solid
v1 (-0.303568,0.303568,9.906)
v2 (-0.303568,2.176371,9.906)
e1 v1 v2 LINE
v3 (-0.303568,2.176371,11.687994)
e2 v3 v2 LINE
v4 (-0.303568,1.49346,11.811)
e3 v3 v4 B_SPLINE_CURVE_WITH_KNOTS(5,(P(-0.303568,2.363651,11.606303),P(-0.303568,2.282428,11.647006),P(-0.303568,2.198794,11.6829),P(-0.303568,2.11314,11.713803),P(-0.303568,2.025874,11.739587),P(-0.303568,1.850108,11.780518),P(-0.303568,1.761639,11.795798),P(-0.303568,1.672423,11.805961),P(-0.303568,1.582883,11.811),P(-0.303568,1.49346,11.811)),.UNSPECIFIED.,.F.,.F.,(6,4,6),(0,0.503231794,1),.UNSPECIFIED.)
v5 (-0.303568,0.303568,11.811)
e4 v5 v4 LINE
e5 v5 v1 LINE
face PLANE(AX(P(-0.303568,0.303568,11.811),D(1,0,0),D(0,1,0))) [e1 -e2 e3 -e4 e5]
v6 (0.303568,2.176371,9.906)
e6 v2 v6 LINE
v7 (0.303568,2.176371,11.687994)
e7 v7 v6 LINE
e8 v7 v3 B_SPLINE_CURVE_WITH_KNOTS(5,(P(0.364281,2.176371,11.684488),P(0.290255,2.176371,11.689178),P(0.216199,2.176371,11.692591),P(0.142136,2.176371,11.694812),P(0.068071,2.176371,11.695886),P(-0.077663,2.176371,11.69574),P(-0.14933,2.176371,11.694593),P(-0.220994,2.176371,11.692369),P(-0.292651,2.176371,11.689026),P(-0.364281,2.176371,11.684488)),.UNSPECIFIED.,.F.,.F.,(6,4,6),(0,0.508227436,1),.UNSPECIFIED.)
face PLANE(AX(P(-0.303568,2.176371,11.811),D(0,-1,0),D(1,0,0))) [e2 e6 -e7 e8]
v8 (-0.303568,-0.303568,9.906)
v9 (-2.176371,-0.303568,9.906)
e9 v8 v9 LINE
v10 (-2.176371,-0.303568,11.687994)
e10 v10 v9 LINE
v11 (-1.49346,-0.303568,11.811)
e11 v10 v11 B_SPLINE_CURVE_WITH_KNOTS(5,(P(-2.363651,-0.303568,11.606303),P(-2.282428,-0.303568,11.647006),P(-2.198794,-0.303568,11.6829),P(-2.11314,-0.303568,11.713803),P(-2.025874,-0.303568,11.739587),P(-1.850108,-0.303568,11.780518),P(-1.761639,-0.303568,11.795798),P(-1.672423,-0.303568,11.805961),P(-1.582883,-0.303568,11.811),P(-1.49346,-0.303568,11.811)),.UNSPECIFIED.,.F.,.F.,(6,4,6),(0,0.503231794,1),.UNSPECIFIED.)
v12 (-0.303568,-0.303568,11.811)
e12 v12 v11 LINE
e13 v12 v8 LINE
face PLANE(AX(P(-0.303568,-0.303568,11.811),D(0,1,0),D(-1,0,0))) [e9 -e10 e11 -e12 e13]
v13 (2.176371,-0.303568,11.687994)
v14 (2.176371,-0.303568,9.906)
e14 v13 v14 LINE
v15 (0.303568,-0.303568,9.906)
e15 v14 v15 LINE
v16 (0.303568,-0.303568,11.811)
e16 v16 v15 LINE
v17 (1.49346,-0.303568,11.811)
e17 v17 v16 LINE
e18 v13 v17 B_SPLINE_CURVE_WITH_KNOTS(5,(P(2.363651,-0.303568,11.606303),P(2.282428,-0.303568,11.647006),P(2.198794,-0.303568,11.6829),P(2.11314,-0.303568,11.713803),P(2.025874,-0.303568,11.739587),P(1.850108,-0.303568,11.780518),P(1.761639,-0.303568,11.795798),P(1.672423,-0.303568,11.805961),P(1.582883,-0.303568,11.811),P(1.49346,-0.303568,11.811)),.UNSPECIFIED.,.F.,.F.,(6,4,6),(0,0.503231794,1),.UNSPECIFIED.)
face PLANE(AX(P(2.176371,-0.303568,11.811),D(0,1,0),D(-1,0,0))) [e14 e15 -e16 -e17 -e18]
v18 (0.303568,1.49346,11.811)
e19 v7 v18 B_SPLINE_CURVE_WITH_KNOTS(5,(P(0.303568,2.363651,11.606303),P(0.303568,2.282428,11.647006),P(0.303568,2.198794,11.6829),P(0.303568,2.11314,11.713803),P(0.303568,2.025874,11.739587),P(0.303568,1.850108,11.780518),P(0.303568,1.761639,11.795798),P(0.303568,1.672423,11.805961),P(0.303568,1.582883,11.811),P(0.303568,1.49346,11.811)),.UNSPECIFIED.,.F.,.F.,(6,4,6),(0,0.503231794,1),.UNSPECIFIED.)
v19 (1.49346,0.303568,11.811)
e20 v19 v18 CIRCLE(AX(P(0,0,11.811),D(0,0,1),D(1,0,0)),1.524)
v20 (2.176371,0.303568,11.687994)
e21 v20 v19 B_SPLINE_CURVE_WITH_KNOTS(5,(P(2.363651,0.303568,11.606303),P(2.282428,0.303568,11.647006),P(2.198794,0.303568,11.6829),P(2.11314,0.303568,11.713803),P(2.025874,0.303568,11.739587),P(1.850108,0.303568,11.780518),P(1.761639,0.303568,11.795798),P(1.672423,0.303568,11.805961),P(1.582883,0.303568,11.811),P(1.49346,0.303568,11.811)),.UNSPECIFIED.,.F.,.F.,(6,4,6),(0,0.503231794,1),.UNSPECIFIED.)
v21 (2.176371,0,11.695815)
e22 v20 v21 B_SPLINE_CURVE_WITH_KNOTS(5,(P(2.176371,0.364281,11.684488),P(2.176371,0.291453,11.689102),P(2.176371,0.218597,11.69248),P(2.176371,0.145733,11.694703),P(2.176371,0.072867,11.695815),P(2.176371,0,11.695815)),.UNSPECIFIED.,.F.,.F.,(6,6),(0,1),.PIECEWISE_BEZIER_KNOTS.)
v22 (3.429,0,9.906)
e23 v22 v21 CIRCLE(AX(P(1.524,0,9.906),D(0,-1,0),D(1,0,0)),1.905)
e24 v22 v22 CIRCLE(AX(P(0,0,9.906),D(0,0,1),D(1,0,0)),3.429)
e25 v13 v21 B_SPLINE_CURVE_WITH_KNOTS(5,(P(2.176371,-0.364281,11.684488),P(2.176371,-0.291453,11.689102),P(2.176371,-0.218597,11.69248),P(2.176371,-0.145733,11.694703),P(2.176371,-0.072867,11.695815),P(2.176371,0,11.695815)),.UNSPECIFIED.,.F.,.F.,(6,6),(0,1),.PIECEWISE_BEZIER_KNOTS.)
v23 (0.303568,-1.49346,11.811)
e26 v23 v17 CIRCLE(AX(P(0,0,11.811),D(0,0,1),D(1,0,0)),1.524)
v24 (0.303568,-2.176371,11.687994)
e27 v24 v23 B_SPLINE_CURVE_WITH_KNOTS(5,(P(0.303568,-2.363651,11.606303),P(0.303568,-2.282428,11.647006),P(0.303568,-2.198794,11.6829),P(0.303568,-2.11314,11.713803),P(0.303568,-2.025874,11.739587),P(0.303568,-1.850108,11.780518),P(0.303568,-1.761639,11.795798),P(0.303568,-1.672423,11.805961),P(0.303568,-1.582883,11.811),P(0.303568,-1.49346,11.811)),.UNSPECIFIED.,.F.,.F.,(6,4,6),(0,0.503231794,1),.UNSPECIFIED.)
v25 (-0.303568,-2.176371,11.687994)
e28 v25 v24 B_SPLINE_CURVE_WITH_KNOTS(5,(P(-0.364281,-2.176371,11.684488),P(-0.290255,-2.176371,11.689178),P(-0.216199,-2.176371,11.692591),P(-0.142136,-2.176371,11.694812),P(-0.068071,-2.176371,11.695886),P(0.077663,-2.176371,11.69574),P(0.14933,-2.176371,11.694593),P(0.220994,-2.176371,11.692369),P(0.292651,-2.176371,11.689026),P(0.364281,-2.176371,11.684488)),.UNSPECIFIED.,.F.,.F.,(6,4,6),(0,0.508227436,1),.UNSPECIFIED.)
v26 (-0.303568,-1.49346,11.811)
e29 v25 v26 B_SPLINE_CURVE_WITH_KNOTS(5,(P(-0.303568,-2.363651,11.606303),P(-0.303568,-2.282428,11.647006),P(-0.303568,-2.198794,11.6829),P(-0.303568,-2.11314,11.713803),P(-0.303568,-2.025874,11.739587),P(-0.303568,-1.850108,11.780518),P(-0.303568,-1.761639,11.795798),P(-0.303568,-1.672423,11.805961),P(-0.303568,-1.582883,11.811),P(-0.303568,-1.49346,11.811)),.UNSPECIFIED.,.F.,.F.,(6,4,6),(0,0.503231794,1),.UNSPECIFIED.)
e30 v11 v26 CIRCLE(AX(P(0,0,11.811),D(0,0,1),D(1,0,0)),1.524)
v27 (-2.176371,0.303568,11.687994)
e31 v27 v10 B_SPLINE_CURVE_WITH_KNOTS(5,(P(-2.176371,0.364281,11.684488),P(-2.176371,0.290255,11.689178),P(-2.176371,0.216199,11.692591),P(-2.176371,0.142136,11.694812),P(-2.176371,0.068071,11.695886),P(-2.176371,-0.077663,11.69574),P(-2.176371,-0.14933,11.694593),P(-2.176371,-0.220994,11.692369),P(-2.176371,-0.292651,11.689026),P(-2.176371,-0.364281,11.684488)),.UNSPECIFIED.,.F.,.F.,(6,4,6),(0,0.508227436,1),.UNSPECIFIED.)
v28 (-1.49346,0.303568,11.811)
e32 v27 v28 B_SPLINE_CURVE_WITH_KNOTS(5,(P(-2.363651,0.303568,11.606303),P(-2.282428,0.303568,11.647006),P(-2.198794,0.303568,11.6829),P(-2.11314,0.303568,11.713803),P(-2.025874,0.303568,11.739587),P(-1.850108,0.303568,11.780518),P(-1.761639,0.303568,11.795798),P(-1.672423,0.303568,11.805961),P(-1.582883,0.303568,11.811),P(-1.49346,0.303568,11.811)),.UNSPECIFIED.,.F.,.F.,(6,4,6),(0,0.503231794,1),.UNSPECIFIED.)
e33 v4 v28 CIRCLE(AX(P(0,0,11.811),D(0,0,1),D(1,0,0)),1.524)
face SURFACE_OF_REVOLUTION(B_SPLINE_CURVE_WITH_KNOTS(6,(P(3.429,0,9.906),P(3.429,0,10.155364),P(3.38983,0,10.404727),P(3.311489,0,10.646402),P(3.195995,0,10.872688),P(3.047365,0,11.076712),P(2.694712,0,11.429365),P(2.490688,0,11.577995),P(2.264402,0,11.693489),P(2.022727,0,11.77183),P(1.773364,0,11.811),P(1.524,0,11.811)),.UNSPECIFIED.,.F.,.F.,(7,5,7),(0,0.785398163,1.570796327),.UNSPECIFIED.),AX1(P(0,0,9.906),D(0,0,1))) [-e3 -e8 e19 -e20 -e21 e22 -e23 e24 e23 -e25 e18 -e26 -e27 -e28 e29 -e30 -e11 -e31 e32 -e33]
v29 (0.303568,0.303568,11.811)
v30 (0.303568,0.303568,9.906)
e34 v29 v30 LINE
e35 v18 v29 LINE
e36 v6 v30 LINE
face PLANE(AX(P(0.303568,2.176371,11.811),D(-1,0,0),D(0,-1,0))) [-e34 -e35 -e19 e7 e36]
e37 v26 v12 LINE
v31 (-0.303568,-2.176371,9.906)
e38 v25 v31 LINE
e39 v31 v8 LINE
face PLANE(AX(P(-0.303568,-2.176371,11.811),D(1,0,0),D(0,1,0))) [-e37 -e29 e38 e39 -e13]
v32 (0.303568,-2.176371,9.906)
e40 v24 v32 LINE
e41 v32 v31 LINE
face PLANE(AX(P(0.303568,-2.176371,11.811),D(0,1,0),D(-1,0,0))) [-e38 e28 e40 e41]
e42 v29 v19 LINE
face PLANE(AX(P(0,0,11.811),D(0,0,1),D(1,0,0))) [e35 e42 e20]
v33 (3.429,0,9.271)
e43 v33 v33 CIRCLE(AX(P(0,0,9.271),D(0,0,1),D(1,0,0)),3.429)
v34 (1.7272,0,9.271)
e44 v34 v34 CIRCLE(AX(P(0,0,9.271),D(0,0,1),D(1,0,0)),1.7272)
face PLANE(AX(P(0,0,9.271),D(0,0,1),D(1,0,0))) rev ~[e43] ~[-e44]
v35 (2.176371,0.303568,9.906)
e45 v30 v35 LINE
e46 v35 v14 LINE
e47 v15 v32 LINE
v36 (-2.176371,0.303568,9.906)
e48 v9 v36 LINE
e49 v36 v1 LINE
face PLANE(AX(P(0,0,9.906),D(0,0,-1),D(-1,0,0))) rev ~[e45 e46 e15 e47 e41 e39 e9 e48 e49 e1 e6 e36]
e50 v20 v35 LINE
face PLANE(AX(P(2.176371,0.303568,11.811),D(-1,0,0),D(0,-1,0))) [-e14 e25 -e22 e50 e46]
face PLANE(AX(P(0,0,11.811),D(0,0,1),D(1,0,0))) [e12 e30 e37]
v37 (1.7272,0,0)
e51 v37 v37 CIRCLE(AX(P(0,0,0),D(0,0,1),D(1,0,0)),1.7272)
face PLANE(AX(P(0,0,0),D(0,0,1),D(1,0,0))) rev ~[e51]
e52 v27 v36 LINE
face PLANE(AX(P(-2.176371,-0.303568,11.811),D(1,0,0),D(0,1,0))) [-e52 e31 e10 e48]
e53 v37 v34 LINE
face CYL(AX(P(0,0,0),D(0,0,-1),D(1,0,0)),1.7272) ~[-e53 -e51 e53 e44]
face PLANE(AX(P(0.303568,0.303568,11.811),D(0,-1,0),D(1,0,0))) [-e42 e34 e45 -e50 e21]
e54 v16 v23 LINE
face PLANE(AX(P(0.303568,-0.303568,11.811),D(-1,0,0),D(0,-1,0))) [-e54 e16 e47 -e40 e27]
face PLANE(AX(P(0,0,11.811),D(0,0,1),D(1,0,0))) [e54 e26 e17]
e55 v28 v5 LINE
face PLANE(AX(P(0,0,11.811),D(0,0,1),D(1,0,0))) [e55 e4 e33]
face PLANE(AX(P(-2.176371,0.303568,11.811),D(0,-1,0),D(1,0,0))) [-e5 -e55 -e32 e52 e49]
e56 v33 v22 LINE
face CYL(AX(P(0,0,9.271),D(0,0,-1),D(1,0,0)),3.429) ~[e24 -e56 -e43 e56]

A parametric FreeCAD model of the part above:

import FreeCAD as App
import Part
import Sketcher

V = App.Vector
Q = App.Units.Quantity


def edges_at(feature, points):
    """Names of the edges that pass closest to the given points."""
    edges = feature.Shape.Edges
    near = lambda p: min(range(len(edges)), key=lambda i: edges[i].distToShape(Part.Vertex(*p))[0])
    return sorted({f"Edge{near(p) + 1}" for p in points})


def add_polygon(sketch, points):
    """Adds a closed chain of lines whose ends are joined by coincident constraints."""
    first, n = sketch.GeometryCount, len(points)
    for a, b in zip(points, points[1:] + points[:1]):
        sketch.addGeometry(Part.LineSegment(App.Vector(*a, 0), App.Vector(*b, 0)), False)
    for i in range(n):
        sketch.addConstraint(Sketcher.Constraint("Coincident", first + i, 2, first + (i + 1) % n, 1))

doc = App.newDocument("Part")
body = doc.addObject("PartDesign::Body", "Body")

# Sketch on XY plane
sketch1 = body.newObject("Sketcher::SketchObject", "Sketch")
sketch1.AttachmentSupport = (doc.getObject("XY_Plane"), [""])
sketch1.MapMode = "FlatFace"
sketch1.addGeometry(Part.Circle(V(0, 0, 0), V(0, 0, 1), 1.7272), False)
sketch1.addConstraint([
    Sketcher.Constraint("Coincident", 0, 3, -1, 1),
    Sketcher.Constraint("Diameter", 0, Q("0.136 in")),
])
pad1 = body.newObject("PartDesign::Pad", "Pad")
pad1.Profile = sketch1
pad1.Length = Q("0.365 in")

# Sketch on XY plane
sketch2 = body.newObject("Sketcher::SketchObject", "Sketch001")
sketch2.AttachmentSupport = (doc.getObject("XY_Plane"), [""])
sketch2.MapMode = "FlatFace"
sketch2.AttachmentOffset = App.Placement(V(0, 0, 0.365 * 25.4), App.Rotation())
sketch2.addGeometry(Part.Circle(V(0, 0, 0), V(0, 0, 1), 3.429), False)
sketch2.addConstraint([
    Sketcher.Constraint("Coincident", 0, 3, -1, 1),
    Sketcher.Constraint("Diameter", 0, Q("0.27 in")),
])
pad2 = body.newObject("PartDesign::Pad", "Pad001")
pad2.Profile = sketch2
pad2.Length = Q("0.1 in")
doc.recompute()

fillet = body.newObject("PartDesign::Fillet", "Fillet")
fillet.Base = (pad2, edges_at(pad2, [(-3.429, 0, 11.811)]))
fillet.Radius = Q("0.075 in")

# Sketch on XY plane
sketch3 = body.newObject("Sketcher::SketchObject", "Sketch002")
sketch3.AttachmentSupport = (doc.getObject("XY_Plane"), [""])
sketch3.MapMode = "FlatFace"
sketch3.AttachmentOffset = App.Placement(V(0, 0, 0.465 * 25.4), App.Rotation())
add_polygon(sketch3, [(-0.303568, 2.176371), (-0.303568, 0.303568), (-2.176371, 0.303568), (-2.176371, -0.303568), (-0.303568, -0.303568), (-0.303568, -2.176371), (0.303568, -2.176371), (0.303568, -0.303568), (2.176371, -0.303568), (2.176371, 0.303568), (0.303568, 0.303568), (0.303568, 2.176371)])  # lines 0-11
sketch3.addConstraint([
    Sketcher.Constraint("Vertical", 0),
    Sketcher.Constraint("Horizontal", 1),
    Sketcher.Constraint("Vertical", 2),
    Sketcher.Constraint("Horizontal", 3),
    Sketcher.Constraint("Vertical", 4),
    Sketcher.Constraint("Horizontal", 5),
    Sketcher.Constraint("Vertical", 6),
    Sketcher.Constraint("Horizontal", 7),
    Sketcher.Constraint("Vertical", 8),
    Sketcher.Constraint("Horizontal", 9),
    Sketcher.Constraint("Vertical", 10),
    Sketcher.Constraint("Horizontal", 11),
    Sketcher.Constraint("Symmetric", 0, 2, 6, 2, -1, 1),
    Sketcher.Constraint("Symmetric", 2, 2, 8, 2, -1, 1),
    Sketcher.Constraint("Symmetric", 4, 2, 10, 2, -1, 1),
    Sketcher.Constraint("Symmetric", 3, 2, 6, 2, -2),
    Sketcher.Constraint("Equal", 9, 0),
    Sketcher.Constraint("Equal", 11, 2),
    Sketcher.Constraint("DistanceX", 1, 2, 1, 1, 1.872803),
    Sketcher.Constraint("DistanceX", 5, 1, 5, 2, 0.607136),
])
pocket1 = body.newObject("PartDesign::Pocket", "Pocket")
pocket1.Profile = sketch3
pocket1.Length = Q("0.075 in")

doc.recompute()
